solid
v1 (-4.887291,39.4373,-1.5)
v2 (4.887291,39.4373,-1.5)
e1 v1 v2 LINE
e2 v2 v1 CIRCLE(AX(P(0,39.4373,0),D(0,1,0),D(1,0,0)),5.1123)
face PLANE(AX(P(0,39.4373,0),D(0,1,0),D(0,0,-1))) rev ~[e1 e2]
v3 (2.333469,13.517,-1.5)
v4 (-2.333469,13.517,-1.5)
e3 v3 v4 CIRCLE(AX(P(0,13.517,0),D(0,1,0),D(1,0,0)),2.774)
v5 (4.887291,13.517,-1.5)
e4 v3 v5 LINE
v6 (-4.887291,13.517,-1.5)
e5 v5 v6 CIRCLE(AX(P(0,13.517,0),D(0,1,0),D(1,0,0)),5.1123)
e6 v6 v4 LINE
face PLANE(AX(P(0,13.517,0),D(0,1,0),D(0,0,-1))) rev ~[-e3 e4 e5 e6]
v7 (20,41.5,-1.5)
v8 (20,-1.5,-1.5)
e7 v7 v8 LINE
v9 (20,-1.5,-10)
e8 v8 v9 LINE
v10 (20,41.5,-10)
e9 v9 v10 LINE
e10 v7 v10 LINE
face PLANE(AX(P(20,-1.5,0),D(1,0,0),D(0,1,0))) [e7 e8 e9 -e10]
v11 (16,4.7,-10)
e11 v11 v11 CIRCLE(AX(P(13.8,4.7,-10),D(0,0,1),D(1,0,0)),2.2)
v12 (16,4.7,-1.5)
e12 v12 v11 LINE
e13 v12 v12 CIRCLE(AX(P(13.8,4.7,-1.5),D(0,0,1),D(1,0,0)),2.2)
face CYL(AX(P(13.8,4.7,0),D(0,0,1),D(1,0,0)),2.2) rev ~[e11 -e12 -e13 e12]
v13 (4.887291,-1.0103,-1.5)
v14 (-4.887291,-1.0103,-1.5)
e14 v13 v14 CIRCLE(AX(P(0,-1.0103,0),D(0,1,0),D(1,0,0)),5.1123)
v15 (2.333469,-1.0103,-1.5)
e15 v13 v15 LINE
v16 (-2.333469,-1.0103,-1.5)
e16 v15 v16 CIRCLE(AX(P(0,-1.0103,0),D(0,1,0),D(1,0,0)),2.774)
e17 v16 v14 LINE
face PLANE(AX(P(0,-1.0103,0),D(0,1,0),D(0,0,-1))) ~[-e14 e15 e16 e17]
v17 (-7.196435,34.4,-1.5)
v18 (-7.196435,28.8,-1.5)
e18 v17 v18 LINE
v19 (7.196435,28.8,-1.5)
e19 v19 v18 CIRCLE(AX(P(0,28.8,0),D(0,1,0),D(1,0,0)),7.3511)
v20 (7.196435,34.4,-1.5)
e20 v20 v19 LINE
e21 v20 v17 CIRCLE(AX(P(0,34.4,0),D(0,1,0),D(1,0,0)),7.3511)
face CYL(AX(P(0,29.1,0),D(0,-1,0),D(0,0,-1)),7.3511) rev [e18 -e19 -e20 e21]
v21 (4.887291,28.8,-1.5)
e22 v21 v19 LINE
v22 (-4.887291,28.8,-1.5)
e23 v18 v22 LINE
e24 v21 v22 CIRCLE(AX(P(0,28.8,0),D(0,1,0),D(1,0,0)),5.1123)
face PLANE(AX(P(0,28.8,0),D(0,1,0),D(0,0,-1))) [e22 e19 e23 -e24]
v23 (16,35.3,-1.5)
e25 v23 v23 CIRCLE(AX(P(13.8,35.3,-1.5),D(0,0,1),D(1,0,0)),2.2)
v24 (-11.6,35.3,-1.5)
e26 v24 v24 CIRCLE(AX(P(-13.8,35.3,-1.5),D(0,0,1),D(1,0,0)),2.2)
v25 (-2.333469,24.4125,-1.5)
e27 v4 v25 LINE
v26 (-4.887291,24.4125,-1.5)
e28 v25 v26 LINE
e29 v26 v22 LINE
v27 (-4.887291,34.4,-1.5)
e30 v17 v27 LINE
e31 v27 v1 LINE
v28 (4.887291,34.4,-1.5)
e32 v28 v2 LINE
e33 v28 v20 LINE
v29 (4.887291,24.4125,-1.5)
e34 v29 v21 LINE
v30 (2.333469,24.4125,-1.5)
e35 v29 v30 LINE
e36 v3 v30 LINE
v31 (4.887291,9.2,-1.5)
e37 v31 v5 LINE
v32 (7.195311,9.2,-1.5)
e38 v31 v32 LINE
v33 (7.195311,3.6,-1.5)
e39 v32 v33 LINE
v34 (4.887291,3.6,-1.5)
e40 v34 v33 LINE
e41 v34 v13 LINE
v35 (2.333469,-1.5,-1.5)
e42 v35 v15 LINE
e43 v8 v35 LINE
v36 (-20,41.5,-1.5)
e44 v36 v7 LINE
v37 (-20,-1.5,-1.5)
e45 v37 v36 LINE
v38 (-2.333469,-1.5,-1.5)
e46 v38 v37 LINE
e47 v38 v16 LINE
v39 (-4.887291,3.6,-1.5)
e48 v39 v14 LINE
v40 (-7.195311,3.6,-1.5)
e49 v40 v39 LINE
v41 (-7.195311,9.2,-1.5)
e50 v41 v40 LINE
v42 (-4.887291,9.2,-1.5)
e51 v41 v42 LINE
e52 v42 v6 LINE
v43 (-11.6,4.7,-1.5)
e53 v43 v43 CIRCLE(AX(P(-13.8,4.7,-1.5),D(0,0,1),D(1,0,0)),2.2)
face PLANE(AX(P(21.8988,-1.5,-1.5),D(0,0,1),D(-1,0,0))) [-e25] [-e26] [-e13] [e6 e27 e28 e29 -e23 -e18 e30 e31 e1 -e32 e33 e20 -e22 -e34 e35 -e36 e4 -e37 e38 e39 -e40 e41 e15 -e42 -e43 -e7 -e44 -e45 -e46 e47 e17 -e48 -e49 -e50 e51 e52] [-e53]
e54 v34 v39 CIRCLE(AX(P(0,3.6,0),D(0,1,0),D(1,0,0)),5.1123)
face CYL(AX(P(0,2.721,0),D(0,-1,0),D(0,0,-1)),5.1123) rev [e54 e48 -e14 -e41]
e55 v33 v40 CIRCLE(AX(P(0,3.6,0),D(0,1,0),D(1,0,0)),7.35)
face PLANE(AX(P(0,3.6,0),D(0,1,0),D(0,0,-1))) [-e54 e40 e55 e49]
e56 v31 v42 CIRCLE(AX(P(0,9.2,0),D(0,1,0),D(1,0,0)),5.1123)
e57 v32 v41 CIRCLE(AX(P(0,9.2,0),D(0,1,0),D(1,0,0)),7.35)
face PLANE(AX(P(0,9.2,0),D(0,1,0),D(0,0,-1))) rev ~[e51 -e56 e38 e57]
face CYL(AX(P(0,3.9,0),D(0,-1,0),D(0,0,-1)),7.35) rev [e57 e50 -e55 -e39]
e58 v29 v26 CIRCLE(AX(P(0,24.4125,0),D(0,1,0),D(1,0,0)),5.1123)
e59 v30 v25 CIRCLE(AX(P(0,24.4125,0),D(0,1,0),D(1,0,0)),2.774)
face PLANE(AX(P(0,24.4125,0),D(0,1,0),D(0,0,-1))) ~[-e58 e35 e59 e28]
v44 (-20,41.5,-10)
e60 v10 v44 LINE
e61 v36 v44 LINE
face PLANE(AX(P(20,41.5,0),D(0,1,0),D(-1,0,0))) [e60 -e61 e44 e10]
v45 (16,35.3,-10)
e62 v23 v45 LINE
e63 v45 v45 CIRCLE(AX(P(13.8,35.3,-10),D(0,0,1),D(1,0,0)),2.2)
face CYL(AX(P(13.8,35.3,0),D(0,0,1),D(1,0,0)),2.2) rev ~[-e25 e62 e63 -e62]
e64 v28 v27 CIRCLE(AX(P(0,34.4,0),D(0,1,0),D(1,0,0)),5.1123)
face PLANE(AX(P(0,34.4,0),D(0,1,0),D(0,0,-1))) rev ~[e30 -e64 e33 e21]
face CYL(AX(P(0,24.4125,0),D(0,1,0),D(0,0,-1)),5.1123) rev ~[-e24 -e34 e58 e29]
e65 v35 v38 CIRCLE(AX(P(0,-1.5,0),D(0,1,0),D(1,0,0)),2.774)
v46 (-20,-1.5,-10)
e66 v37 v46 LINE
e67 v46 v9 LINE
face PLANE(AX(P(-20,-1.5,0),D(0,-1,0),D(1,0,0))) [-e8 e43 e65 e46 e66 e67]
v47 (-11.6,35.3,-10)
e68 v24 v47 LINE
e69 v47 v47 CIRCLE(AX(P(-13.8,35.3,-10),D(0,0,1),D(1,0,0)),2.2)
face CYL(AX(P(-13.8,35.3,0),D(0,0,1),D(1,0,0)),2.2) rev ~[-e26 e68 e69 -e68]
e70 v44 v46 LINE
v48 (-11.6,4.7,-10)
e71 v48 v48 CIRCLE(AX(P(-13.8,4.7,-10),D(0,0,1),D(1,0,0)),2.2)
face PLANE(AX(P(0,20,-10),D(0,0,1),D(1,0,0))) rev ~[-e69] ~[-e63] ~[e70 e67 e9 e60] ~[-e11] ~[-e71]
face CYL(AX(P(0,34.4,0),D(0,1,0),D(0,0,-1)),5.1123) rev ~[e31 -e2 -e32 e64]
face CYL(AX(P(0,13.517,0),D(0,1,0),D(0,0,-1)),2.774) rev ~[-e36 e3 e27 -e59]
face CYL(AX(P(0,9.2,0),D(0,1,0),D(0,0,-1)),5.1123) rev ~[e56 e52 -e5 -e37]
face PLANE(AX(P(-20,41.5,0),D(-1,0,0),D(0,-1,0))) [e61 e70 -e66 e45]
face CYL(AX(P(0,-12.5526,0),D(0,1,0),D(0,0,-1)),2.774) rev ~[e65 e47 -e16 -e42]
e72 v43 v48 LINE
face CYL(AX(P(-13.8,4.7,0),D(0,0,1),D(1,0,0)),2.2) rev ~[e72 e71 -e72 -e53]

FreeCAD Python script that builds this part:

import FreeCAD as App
import Part
import Sketcher

V = App.Vector

doc = App.newDocument("Part")
body = doc.addObject("PartDesign::Body", "Body")

# Sketch on XY plane
sketch1 = body.newObject("Sketcher::SketchObject", "Sketch")
sketch1.AttachmentSupport = (doc.getObject("XY_Plane"), [""])
sketch1.MapMode = "FlatFace"
sketch1.addGeometry([
    Part.LineSegment(V(-20, 41.5, 0), V(-20, -1.5, 0)),  # 0
    Part.LineSegment(V(-20, -1.5, 0), V(20, -1.5, 0)),  # 1
    Part.LineSegment(V(20, -1.5, 0), V(20, 41.5, 0)),  # 2
    Part.LineSegment(V(20, 41.5, 0), V(-20, 41.5, 0)),  # 3
    Part.Circle(V(-13.8, 4.7, 0), V(0, 0, 1), 2.2),  # 4
    Part.Circle(V(13.8, 4.7, 0), V(0, 0, 1), 2.2),  # 5
    Part.Circle(V(-13.8, 35.3, 0), V(0, 0, 1), 2.2),  # 6
    Part.Circle(V(13.8, 35.3, 0), V(0, 0, 1), 2.2),  # 7
], False)
sketch1.addConstraint([
    Sketcher.Constraint("Coincident", 0, 2, 1, 1),
    Sketcher.Constraint("Coincident", 1, 2, 2, 1),
    Sketcher.Constraint("Coincident", 2, 2, 3, 1),
    Sketcher.Constraint("Coincident", 3, 2, 0, 1),
    Sketcher.Constraint("Vertical", 0),
    Sketcher.Constraint("Horizontal", 1),
    Sketcher.Constraint("Vertical", 2),
    Sketcher.Constraint("Horizontal", 3),
    Sketcher.Constraint("Equal", 4, 5),
    Sketcher.Constraint("Equal", 5, 6),
    Sketcher.Constraint("Equal", 6, 7),
    Sketcher.Constraint("Symmetric", 4, 3, 5, 3, -2),
    Sketcher.Constraint("Symmetric", 6, 3, 7, 3, -2),
    Sketcher.Constraint("Vertical", 4, 3, 6, 3),
    Sketcher.Constraint("DistanceX", 0, 2, -1, 1, 20.0),
    Sketcher.Constraint("DistanceX", -1, 1, 1, 2, 20.0),
    Sketcher.Constraint("Diameter", 4, 4.4),
    Sketcher.Constraint("DistanceX", 4, 3, -1, 1, 13.8),
    Sketcher.Constraint("DistanceY", 0, 2, 0, 1, 43.0),
    Sketcher.Constraint("DistanceY", -1, 1, 4, 3, 4.7),
    Sketcher.Constraint("DistanceY", -1, 1, 6, 3, 35.3),
    Sketcher.Constraint("DistanceY", 0, 2, -1, 1, 1.5),
])
pad1 = body.newObject("PartDesign::Pad", "Pad")
pad1.Profile = sketch1
pad1.Length = 10
pad1.Reversed = True

# Sketch on YZ plane
sketch2 = body.newObject("Sketcher::SketchObject", "Sketch001")
sketch2.AttachmentSupport = (doc.getObject("YZ_Plane"), [""])
sketch2.MapMode = "FlatFace"
sketch2.addGeometry([
    Part.LineSegment(V(3.6, -7.3, 0), V(9.2, -7.3, 0)),  # 0
    Part.LineSegment(V(9.2, -7.3, 0), V(9.2, -5.1, 0)),  # 1
    Part.LineSegment(V(9.2, -5.1, 0), V(13.5, -5.1, 0)),  # 2
    Part.LineSegment(V(13.5, -5.1, 0), V(13.5, -2.8, 0)),  # 3
    Part.LineSegment(V(13.5, -2.8, 0), V(24.4, -2.8, 0)),  # 4
    Part.LineSegment(V(24.4, -2.8, 0), V(24.4, -5.1, 0)),  # 5
    Part.LineSegment(V(24.4, -5.1, 0), V(28.8, -5.1, 0)),  # 6
    Part.LineSegment(V(28.8, -5.1, 0), V(28.8, -7.4, 0)),  # 7
    Part.LineSegment(V(28.8, -7.4, 0), V(34.4, -7.4, 0)),  # 8
    Part.LineSegment(V(34.4, -7.4, 0), V(34.4, -5.1, 0)),  # 9
    Part.LineSegment(V(34.4, -5.1, 0), V(39.4, -5.1, 0)),  # 10
    Part.LineSegment(V(39.4, -5.1, 0), V(39.4, 0, 0)),  # 11
    Part.LineSegment(V(39.4, 0, 0), V(-12.6, 0, 0)),  # 12
    Part.LineSegment(V(-12.6, 0, 0), V(-12.6, -2.8, 0)),  # 13
    Part.LineSegment(V(-12.6, -2.8, 0), V(-1, -2.8, 0)),  # 14
    Part.LineSegment(V(-1, -2.8, 0), V(-1, -5.1, 0)),  # 15
    Part.LineSegment(V(-1, -5.1, 0), V(3.6, -5.1, 0)),  # 16
    Part.LineSegment(V(3.6, -5.1, 0), V(3.6, -7.3, 0)),  # 17
], False)
sketch2.addConstraint([
    Sketcher.Constraint("Coincident", 0, 2, 1, 1),
    Sketcher.Constraint("Coincident", 1, 2, 2, 1),
    Sketcher.Constraint("Coincident", 2, 2, 3, 1),
    Sketcher.Constraint("Coincident", 3, 2, 4, 1),
    Sketcher.Constraint("Coincident", 4, 2, 5, 1),
    Sketcher.Constraint("Coincident", 5, 2, 6, 1),
    Sketcher.Constraint("Coincident", 6, 2, 7, 1),
    Sketcher.Constraint("Coincident", 7, 2, 8, 1),
    Sketcher.Constraint("Coincident", 8, 2, 9, 1),
    Sketcher.Constraint("Coincident", 9, 2, 10, 1),
    Sketcher.Constraint("Coincident", 10, 2, 11, 1),
    Sketcher.Constraint("Coincident", 11, 2, 12, 1),
    Sketcher.Constraint("Coincident", 12, 2, 13, 1),
    Sketcher.Constraint("Coincident", 13, 2, 14, 1),
    Sketcher.Constraint("Coincident", 14, 2, 15, 1),
    Sketcher.Constraint("Coincident", 15, 2, 16, 1),
    Sketcher.Constraint("Coincident", 16, 2, 17, 1),
    Sketcher.Constraint("Coincident", 17, 2, 0, 1),
    Sketcher.Constraint("Horizontal", 0),
    Sketcher.Constraint("Vertical", 1),
    Sketcher.Constraint("Horizontal", 2),
    Sketcher.Constraint("Vertical", 3),
    Sketcher.Constraint("Horizontal", 4),
    Sketcher.Constraint("Vertical", 5),
    Sketcher.Constraint("Horizontal", 6),
    Sketcher.Constraint("Vertical", 7),
    Sketcher.Constraint("Horizontal", 8),
    Sketcher.Constraint("Vertical", 9),
    Sketcher.Constraint("Horizontal", 10),
    Sketcher.Constraint("Vertical", 11),
    Sketcher.Constraint("Horizontal", 12),
    Sketcher.Constraint("Vertical", 13),
    Sketcher.Constraint("Horizontal", 14),
    Sketcher.Constraint("Vertical", 15),
    Sketcher.Constraint("Horizontal", 16),
    Sketcher.Constraint("Vertical", 17),
    Sketcher.Constraint("PointOnObject", 11, 2, -1),
    Sketcher.Constraint("Horizontal", 2, 2, 5, 2),
    Sketcher.Constraint("Horizontal", 6, 2, 9, 2),
    Sketcher.Constraint("Horizontal", 4, 2, 13, 2),
    Sketcher.Constraint("Horizontal", 10, 2, 15, 2),
    Sketcher.Constraint("Equal", 0, 8),
    Sketcher.Constraint("DistanceX", 0, 1, 0, 2, 5.6),
    Sketcher.Constraint("DistanceX", 12, 2, 12, 1, 51.99),
    Sketcher.Constraint("DistanceX", -1, 1, 0, 2, 9.2),
    Sketcher.Constraint("DistanceX", -1, 1, 6, 2, 28.8),
    Sketcher.Constraint("DistanceX", 2, 1, 2, 2, 4.317),
    Sketcher.Constraint("DistanceY", 13, 2, 13, 1, 2.774),
    Sketcher.Constraint("DistanceY", 0, 2, -1, 1, 7.35),
    Sketcher.Constraint("DistanceX", 4, 1, 4, 2, 10.8955),
    Sketcher.Constraint("DistanceX", 10, 1, 10, 2, 5.0373),
    Sketcher.Constraint("DistanceX", 14, 1, 14, 2, 11.5423),
    Sketcher.Constraint("DistanceY", 1, 1, 1, 2, 2.2377),
    Sketcher.Constraint("DistanceY", 7, 2, 7, 1, 2.2388),
])
groove = body.newObject("PartDesign::Groove", "Groove")
groove.Profile = sketch2
groove.ReferenceAxis = (sketch2, ["H_Axis"])
groove.Angle = 360

# Sketch on XZ plane
sketch3 = body.newObject("Sketcher::SketchObject", "Sketch002")
sketch3.AttachmentSupport = (doc.getObject("XZ_Plane"), [""])
sketch3.MapMode = "FlatFace"
sketch3.AttachmentOffset = App.Placement(V(0, 0, 1.5), App.Rotation())
sketch3.addGeometry([
    Part.LineSegment(V(21.9, 0, 0), V(-23.2, 0, 0)),
    Part.LineSegment(V(-23.2, 0, 0), V(-23.2, -1.5, 0)),
    Part.LineSegment(V(-23.2, -1.5, 0), V(21.9, -1.5, 0)),
    Part.LineSegment(V(21.9, -1.5, 0), V(21.9, 0, 0)),
], False)
sketch3.addConstraint([
    Sketcher.Constraint("Coincident", 0, 2, 1, 1),
    Sketcher.Constraint("Coincident", 1, 2, 2, 1),
    Sketcher.Constraint("Coincident", 2, 2, 3, 1),
    Sketcher.Constraint("Coincident", 3, 2, 0, 1),
    Sketcher.Constraint("Horizontal", 0),
    Sketcher.Constraint("Vertical", 1),
    Sketcher.Constraint("Horizontal", 2),
    Sketcher.Constraint("Vertical", 3),
    Sketcher.Constraint("PointOnObject", 0, 2, -1),
    Sketcher.Constraint("DistanceY", 1, 2, 1, 1, 1.5),
    Sketcher.Constraint("DistanceX", 0, 2, -1, 1, 23.184),
    Sketcher.Constraint("DistanceX", 0, 2, 0, 1, 45.0827),
])
pocket1 = body.newObject("PartDesign::Pocket", "Pocket")
pocket1.Profile = sketch3
pocket1.Length = 318.8634

doc.recompute()
